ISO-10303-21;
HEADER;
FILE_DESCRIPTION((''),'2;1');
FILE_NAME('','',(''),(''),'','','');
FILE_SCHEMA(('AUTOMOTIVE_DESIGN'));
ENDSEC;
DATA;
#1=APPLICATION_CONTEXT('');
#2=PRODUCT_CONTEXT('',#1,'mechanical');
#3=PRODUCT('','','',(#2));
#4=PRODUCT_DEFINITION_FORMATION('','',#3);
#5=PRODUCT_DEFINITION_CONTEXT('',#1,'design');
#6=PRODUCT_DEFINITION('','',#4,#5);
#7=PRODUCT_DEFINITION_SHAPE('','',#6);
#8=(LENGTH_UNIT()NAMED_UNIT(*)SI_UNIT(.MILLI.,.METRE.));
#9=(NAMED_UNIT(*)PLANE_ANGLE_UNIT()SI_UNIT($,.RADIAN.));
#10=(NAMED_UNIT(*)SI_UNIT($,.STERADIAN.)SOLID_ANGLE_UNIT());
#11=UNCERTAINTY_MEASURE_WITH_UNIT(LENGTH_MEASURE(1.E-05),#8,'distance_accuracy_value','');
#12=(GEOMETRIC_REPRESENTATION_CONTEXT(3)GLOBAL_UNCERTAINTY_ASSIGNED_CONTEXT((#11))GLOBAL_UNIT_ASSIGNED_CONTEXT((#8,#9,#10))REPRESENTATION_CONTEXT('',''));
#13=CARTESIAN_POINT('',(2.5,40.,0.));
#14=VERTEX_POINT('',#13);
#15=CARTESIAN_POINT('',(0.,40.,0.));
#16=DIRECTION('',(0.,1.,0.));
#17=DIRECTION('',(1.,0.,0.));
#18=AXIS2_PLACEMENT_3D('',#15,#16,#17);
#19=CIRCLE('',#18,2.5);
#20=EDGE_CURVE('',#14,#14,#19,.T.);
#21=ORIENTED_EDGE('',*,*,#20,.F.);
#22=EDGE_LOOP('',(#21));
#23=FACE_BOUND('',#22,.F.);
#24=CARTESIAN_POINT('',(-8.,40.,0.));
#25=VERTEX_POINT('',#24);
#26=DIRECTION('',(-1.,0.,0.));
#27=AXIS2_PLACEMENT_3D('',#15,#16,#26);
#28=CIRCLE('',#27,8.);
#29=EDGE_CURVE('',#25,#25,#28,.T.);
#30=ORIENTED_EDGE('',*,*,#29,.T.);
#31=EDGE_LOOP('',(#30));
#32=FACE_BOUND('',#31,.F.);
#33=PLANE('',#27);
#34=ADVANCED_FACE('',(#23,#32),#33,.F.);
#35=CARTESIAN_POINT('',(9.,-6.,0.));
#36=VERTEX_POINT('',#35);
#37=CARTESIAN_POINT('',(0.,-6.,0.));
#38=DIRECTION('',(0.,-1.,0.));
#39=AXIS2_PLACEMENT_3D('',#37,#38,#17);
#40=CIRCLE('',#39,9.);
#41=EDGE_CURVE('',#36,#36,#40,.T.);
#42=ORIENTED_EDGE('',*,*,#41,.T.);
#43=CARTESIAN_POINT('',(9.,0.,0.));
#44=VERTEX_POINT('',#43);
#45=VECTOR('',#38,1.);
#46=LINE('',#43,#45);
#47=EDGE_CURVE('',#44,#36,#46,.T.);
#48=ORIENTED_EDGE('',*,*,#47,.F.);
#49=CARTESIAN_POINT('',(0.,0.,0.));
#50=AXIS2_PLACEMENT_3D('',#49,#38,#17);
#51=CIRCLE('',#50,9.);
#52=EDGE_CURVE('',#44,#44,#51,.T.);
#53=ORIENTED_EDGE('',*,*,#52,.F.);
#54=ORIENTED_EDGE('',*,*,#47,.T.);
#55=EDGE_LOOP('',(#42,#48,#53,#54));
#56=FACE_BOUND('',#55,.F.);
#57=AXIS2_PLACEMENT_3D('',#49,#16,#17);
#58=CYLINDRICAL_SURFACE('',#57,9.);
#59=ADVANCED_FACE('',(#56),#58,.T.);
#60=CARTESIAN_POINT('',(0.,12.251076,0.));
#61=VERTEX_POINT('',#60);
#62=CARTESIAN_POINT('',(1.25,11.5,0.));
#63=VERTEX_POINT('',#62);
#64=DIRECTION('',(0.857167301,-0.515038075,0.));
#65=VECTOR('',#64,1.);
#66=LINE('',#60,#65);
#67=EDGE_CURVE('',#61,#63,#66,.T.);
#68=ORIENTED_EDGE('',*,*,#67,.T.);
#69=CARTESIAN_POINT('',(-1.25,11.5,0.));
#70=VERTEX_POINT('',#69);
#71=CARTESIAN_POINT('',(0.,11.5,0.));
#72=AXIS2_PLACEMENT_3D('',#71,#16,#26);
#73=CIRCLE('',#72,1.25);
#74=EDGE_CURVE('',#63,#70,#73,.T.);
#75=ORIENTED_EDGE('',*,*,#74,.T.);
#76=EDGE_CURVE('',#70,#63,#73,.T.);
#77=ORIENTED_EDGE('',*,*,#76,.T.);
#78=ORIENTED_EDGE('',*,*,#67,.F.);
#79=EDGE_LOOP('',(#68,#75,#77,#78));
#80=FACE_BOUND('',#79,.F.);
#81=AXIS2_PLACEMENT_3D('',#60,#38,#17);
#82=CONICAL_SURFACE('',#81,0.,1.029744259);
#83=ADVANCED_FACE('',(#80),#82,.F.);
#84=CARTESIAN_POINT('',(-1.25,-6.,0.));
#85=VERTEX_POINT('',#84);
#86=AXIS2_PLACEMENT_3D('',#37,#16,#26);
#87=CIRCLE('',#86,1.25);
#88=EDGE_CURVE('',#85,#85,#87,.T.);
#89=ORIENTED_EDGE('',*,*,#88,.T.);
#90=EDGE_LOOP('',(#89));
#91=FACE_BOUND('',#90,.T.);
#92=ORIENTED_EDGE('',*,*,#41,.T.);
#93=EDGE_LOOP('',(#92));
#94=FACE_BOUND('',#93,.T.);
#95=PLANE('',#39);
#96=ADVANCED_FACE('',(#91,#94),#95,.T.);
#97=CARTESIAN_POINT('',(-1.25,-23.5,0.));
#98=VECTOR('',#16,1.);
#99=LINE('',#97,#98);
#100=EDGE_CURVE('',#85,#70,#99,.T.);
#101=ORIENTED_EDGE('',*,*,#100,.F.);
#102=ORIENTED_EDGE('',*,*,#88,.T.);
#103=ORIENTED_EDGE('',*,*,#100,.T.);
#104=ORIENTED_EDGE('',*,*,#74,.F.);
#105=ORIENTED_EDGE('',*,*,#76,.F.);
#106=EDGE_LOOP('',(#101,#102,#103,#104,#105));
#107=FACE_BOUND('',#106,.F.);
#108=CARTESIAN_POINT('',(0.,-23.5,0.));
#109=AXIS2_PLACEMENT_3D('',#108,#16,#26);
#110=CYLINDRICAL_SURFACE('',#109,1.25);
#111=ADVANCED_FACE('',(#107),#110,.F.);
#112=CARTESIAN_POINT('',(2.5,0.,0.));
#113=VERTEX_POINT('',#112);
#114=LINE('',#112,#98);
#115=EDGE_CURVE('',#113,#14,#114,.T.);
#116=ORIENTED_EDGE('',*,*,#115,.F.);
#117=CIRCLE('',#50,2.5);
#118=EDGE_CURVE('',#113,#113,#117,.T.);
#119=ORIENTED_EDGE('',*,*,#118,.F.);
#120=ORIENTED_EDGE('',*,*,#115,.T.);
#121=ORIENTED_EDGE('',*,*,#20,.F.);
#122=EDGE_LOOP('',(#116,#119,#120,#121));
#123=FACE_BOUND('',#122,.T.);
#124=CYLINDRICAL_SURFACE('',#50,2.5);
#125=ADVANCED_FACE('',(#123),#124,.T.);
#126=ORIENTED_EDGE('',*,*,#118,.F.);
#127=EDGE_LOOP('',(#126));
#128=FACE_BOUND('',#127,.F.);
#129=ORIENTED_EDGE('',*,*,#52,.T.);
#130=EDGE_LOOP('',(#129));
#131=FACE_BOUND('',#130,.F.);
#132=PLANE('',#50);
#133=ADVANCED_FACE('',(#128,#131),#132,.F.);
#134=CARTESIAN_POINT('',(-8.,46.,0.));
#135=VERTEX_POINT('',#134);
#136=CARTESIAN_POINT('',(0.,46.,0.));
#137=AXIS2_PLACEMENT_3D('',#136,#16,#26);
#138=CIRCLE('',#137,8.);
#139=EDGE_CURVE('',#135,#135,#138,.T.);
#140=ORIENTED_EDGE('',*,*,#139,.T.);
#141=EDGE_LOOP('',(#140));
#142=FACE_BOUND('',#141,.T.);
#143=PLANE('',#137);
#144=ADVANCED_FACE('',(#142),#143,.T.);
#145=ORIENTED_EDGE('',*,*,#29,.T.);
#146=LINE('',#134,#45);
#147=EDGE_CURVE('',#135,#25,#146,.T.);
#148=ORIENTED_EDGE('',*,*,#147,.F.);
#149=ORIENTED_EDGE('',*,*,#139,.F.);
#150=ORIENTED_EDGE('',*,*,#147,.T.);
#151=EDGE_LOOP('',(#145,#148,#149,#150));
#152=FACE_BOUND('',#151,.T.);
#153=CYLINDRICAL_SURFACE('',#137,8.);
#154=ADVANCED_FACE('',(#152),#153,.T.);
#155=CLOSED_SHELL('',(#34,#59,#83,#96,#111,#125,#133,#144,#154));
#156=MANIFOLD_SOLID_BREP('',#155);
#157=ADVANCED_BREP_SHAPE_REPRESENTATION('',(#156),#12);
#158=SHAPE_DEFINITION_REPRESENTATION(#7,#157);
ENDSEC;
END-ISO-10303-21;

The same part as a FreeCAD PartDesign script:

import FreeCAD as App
import Part
import Sketcher

V = App.Vector

doc = App.newDocument("Part")
body = doc.addObject("PartDesign::Body", "Body")

# Sketch on XZ plane
sketch1 = body.newObject("Sketcher::SketchObject", "Sketch")
sketch1.AttachmentSupport = (doc.getObject("XZ_Plane"), [""])
sketch1.MapMode = "FlatFace"
sketch1.addGeometry(Part.Circle(V(0, 0, 0), V(0, 0, 1), 9), False)
sketch1.addConstraint([
    Sketcher.Constraint("Coincident", 0, 3, -1, 1),
    Sketcher.Constraint("Diameter", 0, 18.0),
])
pad1 = body.newObject("PartDesign::Pad", "Pad")
pad1.Profile = sketch1
pad1.Length = 6

# Sketch on XZ plane
sketch2 = body.newObject("Sketcher::SketchObject", "Sketch001")
sketch2.AttachmentSupport = (doc.getObject("XZ_Plane"), [""])
sketch2.MapMode = "FlatFace"
sketch2.addGeometry(Part.Circle(V(0, 0, 0), V(0, 0, 1), 2.5), False)
sketch2.addConstraint([
    Sketcher.Constraint("Coincident", 0, 3, -1, 1),
    Sketcher.Constraint("Diameter", 0, 5.0),
])
pad2 = body.newObject("PartDesign::Pad", "Pad001")
pad2.Profile = sketch2
pad2.Length = 46
pad2.Reversed = True

# Sketch on XZ plane
sketch3 = body.newObject("Sketcher::SketchObject", "Sketch002")
sketch3.AttachmentSupport = (doc.getObject("XZ_Plane"), [""])
sketch3.MapMode = "FlatFace"
sketch3.AttachmentOffset = App.Placement(V(0, 0, -46), App.Rotation())
sketch3.addGeometry([
    Part.Circle(V(0, 0, 0), V(0, 0, 1), 8),
    Part.Circle(V(0, 0, 0), V(0, 0, 1), 2.5),
], False)
sketch3.addConstraint([
    Sketcher.Constraint("Coincident", 0, 3, -1, 1),
    Sketcher.Constraint("Coincident", 1, 3, -1, 1),
    Sketcher.Constraint("Diameter", 0, 16.0),
    Sketcher.Constraint("Diameter", 1, 5.0),
])
pad3 = body.newObject("PartDesign::Pad", "Pad002")
pad3.Profile = sketch3
pad3.Length = 6

# Sketch on XZ plane
sketch4 = body.newObject("Sketcher::SketchObject", "Sketch003")
sketch4.AttachmentSupport = (doc.getObject("XZ_Plane"), [""])
sketch4.MapMode = "FlatFace"
sketch4.AttachmentOffset = App.Placement(V(0, 0, 6), App.Rotation())
sketch4.addGeometry(Part.Circle(V(0, 0, 0), V(0, 0, 1), 1.2), False)
sketch4.addConstraint([
    Sketcher.Constraint("Coincident", 0, 3, -1, 1),
    Sketcher.Constraint("Diameter", 0, 2.5),
])
doc.recompute()
hole = body.newObject("PartDesign::Hole", "Hole")
hole.Profile = sketch4
hole.ThreadType = "None"
hole.Diameter = 2.5
hole.DepthType = "Dimension"
hole.Depth = 17.5
hole.DrillPoint = "Angled"
hole.DrillPointAngle = 118

doc.recompute()
